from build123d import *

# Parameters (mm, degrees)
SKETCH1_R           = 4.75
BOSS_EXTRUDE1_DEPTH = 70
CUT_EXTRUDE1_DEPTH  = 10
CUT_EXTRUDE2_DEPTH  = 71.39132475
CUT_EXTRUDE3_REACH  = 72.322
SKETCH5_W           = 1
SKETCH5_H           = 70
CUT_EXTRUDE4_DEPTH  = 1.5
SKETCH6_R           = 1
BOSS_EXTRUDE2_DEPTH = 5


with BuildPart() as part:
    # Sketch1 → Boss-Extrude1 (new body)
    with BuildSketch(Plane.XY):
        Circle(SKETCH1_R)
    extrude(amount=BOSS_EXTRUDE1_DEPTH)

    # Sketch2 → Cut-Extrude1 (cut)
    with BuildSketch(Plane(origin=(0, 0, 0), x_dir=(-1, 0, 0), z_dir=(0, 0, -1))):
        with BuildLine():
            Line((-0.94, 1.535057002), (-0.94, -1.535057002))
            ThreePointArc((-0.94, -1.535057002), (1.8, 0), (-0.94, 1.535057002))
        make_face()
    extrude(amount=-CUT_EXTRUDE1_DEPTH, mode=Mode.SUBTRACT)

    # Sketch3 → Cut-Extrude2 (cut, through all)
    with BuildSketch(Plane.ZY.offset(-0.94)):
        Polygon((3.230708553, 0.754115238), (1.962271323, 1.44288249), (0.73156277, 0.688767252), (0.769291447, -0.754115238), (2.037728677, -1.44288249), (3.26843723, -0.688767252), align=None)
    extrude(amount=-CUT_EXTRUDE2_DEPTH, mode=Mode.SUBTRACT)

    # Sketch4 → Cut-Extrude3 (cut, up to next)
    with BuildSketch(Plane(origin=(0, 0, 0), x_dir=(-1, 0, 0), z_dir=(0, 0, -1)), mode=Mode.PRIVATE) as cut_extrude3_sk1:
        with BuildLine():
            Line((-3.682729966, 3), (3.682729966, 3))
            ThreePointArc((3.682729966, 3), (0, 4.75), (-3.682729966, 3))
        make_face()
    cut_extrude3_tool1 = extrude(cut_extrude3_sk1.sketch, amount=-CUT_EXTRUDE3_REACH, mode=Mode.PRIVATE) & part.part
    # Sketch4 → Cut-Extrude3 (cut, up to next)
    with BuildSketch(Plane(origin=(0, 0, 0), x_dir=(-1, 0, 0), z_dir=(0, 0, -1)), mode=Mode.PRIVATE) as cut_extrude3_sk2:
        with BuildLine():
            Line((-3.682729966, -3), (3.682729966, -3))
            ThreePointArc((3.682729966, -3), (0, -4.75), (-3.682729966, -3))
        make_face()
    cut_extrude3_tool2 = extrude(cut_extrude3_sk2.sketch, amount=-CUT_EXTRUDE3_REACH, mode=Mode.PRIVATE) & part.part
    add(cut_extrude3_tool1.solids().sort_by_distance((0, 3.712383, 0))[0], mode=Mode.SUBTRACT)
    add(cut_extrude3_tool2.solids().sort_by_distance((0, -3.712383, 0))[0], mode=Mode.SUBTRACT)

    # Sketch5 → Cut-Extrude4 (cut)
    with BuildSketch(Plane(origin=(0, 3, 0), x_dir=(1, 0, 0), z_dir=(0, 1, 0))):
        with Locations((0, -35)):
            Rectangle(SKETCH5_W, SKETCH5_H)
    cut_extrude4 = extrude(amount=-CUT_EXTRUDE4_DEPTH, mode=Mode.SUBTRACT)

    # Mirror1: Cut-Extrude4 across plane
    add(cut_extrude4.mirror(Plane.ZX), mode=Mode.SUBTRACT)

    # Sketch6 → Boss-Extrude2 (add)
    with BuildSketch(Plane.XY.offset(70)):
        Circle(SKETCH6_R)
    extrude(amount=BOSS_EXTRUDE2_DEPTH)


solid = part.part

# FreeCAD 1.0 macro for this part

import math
import FreeCAD as App
import Part
import Sketcher

V = App.Vector
Q = App.Units.Quantity


def add_polygon(sketch, points):
    """Adds a closed chain of lines whose ends are joined by coincident constraints."""
    first, n = sketch.GeometryCount, len(points)
    for a, b in zip(points, points[1:] + points[:1]):
        sketch.addGeometry(Part.LineSegment(App.Vector(*a, 0), App.Vector(*b, 0)), False)
    for i in range(n):
        sketch.addConstraint(Sketcher.Constraint("Coincident", first + i, 2, first + (i + 1) % n, 1))

doc = App.newDocument("Part")
body = doc.addObject("PartDesign::Body", "Body")

# Sketch on XY plane
sketch1 = body.newObject("Sketcher::SketchObject", "Sketch")
sketch1.AttachmentSupport = (doc.getObject("XY_Plane"), [""])
sketch1.MapMode = "FlatFace"
sketch1.addGeometry(Part.Circle(V(0, 0, 0), V(0, 0, 1), 4.8), False)
sketch1.addConstraint([
    Sketcher.Constraint("Coincident", 0, 3, -1, 1),
    Sketcher.Constraint("Diameter", 0, Q("9.5 mm")),
])
pad1 = body.newObject("PartDesign::Pad", "Pad")
pad1.Profile = sketch1
pad1.Length = 70

# Sketch on XY plane
sketch2 = body.newObject("Sketcher::SketchObject", "Sketch001")
sketch2.AttachmentSupport = (doc.getObject("XY_Plane"), [""])
sketch2.MapMode = "FlatFace"
sketch2.addGeometry([
    Part.LineSegment(V(0.9, 1.5, 0), V(0.9, -1.5, 0)),
    Part.ArcOfCircle(Part.Circle(V(0, 0, 0), V(0, 0, 1), 1.8), math.radians(59), math.radians(301)),
], False)
sketch2.addConstraint([
    Sketcher.Constraint("Coincident", 0, 1, 1, 1),
    Sketcher.Constraint("Coincident", 1, 2, 0, 2),
    Sketcher.Constraint("Vertical", 0),
    Sketcher.Constraint("Coincident", 1, 3, -1, 1),
    Sketcher.Constraint("Radius", 1, Q("1.8 mm")),
    Sketcher.Constraint("DistanceX", -1, 1, 0, 1, Q("0.94 mm")),
])
pocket1 = body.newObject("PartDesign::Pocket", "Pocket")
pocket1.Profile = sketch2
pocket1.Length = 10
pocket1.Reversed = True

# Sketch on YZ plane
sketch3 = body.newObject("Sketcher::SketchObject", "Sketch002")
sketch3.AttachmentSupport = (doc.getObject("YZ_Plane"), [""])
sketch3.MapMode = "FlatFace"
sketch3.AttachmentOffset = App.Placement(V(0, 0, 0.94), App.Rotation())
add_polygon(sketch3, [(0.8, 3.2), (1.4, 2), (0.7, 0.7), (-0.8, 0.8), (-1.4, 2), (-0.7, 3.3)])  # lines 0-5
sketch3.addConstraint([
    Sketcher.Constraint("Parallel", 0, 3),
    Sketcher.Constraint("Parallel", 1, 4),
    Sketcher.Constraint("Parallel", 2, 5),
    Sketcher.Constraint("Equal", 0, 1),
    Sketcher.Constraint("Equal", 1, 2),
    Sketcher.Constraint("Equal", 2, 3),
    Sketcher.Constraint("DistanceY", -1, 1, 0, 2, Q("1.962271 mm")),
    Sketcher.Constraint("DistanceY", -1, 1, 2, 2, Q("0.769291 mm")),
    Sketcher.Constraint("DistanceY", -1, 1, 3, 2, Q("2.037729 mm")),
    Sketcher.Constraint("DistanceY", 1, 2, 0, 2, Q("1.230709 mm")),
    Sketcher.Constraint("DistanceX", 3, 2, 1, 2, Q("2.13165 mm")),
    Sketcher.Constraint("DistanceX", -1, 1, 0, 2, Q("1.442882 mm")),
])
pocket2 = body.newObject("PartDesign::Pocket", "Pocket001")
pocket2.Profile = sketch3
pocket2.Type = "ThroughAll"
pocket2.Reversed = True

# Sketch on XY plane
sketch4 = body.newObject("Sketcher::SketchObject", "Sketch003")
sketch4.AttachmentSupport = (doc.getObject("XY_Plane"), [""])
sketch4.MapMode = "FlatFace"
sketch4.addGeometry([
    Part.LineSegment(V(3.7, 3, 0), V(-3.7, 3, 0)),
    Part.ArcOfCircle(Part.Circle(V(0, 0, 0), V(0, 0, 1), 4.8), math.radians(39), math.radians(141)),
], False)
sketch4.addConstraint([
    Sketcher.Constraint("Coincident", 0, 1, 1, 1),
    Sketcher.Constraint("Coincident", 1, 2, 0, 2),
    Sketcher.Constraint("Horizontal", 0),
    Sketcher.Constraint("Coincident", 1, 3, -1, 1),
    Sketcher.Constraint("Radius", 1, Q("4.75 mm")),
    Sketcher.Constraint("DistanceY", -1, 1, 0, 1, Q("3 mm")),
])
pocket3 = body.newObject("PartDesign::Pocket", "Pocket002")
pocket3.Profile = sketch4
pocket3.Type = "UpToFirst"
pocket3.Reversed = True

# Sketch on XY plane
sketch5 = body.newObject("Sketcher::SketchObject", "Sketch004")
sketch5.AttachmentSupport = (doc.getObject("XY_Plane"), [""])
sketch5.MapMode = "FlatFace"
sketch5.addGeometry([
    Part.LineSegment(V(-3.7, -3, 0), V(3.7, -3, 0)),
    Part.ArcOfCircle(Part.Circle(V(0, 0, 0), V(0, 0, 1), 4.8), math.radians(-141), math.radians(-39)),
], False)
sketch5.addConstraint([
    Sketcher.Constraint("Coincident", 0, 1, 1, 1),
    Sketcher.Constraint("Coincident", 1, 2, 0, 2),
    Sketcher.Constraint("Horizontal", 0),
    Sketcher.Constraint("Coincident", 1, 3, -1, 1),
    Sketcher.Constraint("Radius", 1, Q("4.75 mm")),
    Sketcher.Constraint("DistanceY", 0, 1, -1, 1, Q("3 mm")),
])
pocket4 = body.newObject("PartDesign::Pocket", "Pocket003")
pocket4.Profile = sketch5
pocket4.Type = "UpToFirst"
pocket4.Reversed = True

# Sketch on XZ plane
sketch6 = body.newObject("Sketcher::SketchObject", "Sketch005")
sketch6.AttachmentSupport = (doc.getObject("XZ_Plane"), [""])
sketch6.MapMode = "FlatFace"
sketch6.AttachmentOffset = App.Placement(V(0, 0, -3), App.Rotation())
add_polygon(sketch6, [(-0.5, 0), (-0.5, 70), (0.5, 70), (0.5, 0)])  # lines 0-3
sketch6.addConstraint([
    Sketcher.Constraint("Vertical", 0),
    Sketcher.Constraint("Horizontal", 1),
    Sketcher.Constraint("Vertical", 2),
    Sketcher.Constraint("Horizontal", 3),
    Sketcher.Constraint("Symmetric", 2, 2, 3, 2, -1, 1),
    Sketcher.Constraint("DistanceX", 1, 1, 1, 2, Q("1 mm")),
    Sketcher.Constraint("DistanceY", 0, 1, 0, 2, Q("70 mm")),
])
pocket5 = body.newObject("PartDesign::Pocket", "Pocket004")
pocket5.Profile = sketch6
pocket5.Length = 1.5
pocket5.Reversed = True
doc.recompute()

mirrored = body.newObject("PartDesign::Mirrored", "Mirrored")
mirrored.Originals = [pocket5]
mirrored.MirrorPlane = (doc.getObject("XZ_Plane"), [""])
body.Tip = mirrored

# Sketch on XY plane
sketch7 = body.newObject("Sketcher::SketchObject", "Sketch006")
sketch7.AttachmentSupport = (doc.getObject("XY_Plane"), [""])
sketch7.MapMode = "FlatFace"
sketch7.AttachmentOffset = App.Placement(V(0, 0, 70), App.Rotation())
sketch7.addGeometry(Part.Circle(V(0, 0, 0), V(0, 0, 1), 1), False)
sketch7.addConstraint([
    Sketcher.Constraint("Coincident", 0, 3, -1, 1),
    Sketcher.Constraint("Diameter", 0, Q("2 mm")),
])
pad2 = body.newObject("PartDesign::Pad", "Pad001")
pad2.Profile = sketch7
pad2.Length = 5

doc.recompute()
